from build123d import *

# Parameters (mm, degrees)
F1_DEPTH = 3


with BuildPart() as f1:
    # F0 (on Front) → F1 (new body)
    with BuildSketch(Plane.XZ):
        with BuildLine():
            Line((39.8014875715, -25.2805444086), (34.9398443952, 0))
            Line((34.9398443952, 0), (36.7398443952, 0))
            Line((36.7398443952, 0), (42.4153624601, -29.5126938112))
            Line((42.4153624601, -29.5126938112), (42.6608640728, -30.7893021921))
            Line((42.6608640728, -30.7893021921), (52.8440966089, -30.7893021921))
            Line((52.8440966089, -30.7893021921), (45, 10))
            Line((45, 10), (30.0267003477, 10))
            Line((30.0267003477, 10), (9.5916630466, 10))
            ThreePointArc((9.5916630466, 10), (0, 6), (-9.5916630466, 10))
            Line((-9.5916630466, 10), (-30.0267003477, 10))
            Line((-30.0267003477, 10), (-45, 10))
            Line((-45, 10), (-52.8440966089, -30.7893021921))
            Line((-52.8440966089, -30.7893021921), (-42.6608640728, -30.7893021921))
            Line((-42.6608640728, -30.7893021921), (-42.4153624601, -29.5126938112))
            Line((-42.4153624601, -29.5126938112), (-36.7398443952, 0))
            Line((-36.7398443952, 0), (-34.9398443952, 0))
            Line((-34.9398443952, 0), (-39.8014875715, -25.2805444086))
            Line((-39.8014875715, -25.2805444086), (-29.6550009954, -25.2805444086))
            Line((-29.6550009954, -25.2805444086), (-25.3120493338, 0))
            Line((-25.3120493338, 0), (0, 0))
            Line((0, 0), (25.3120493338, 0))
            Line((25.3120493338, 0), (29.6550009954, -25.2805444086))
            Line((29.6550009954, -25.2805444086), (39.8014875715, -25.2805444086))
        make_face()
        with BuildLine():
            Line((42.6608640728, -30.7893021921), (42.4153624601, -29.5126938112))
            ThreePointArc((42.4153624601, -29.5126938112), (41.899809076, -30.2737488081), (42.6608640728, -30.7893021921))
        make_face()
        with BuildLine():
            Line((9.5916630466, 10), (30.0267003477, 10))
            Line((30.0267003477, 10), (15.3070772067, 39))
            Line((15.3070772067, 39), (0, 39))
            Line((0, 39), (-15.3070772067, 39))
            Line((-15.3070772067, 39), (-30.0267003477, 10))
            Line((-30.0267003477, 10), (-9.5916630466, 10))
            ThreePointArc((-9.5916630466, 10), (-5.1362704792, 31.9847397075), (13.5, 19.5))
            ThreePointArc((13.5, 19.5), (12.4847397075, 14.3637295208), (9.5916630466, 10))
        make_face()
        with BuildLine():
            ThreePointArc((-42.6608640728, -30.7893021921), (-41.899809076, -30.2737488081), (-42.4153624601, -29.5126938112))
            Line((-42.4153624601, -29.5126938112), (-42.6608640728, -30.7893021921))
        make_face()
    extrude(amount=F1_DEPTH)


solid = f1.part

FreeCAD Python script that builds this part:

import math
import FreeCAD as App
import Part
import Sketcher
from FreeCAD import Vector
Q = App.Units.Quantity

doc = App.newDocument("Part")
body = doc.addObject("PartDesign::Body", "Body")

sketch1 = doc.addObject("Sketcher::SketchObject", "Sketch")
body.addObject(sketch1)
sketch1.AttachmentSupport = (doc.XZ_Plane, [""])
sketch1.MapMode = "FlatFace"
sketch1.addGeometry([
    Part.LineSegment(Vector(39.8, -25.3, 0), Vector(34.9, 0, 0)),
    Part.LineSegment(Vector(34.9, 0, 0), Vector(36.7, 0, 0)),
    Part.LineSegment(Vector(36.7, 0, 0), Vector(42.4, -29.5, 0)),
    Part.ArcOfCircle(Part.Circle(Vector(42.5, -30.2, 0), Vector(0, 0, 1), 0.7), math.radians(101), math.radians(281)),
    Part.LineSegment(Vector(42.7, -30.8, 0), Vector(52.8, -30.8, 0)),
    Part.LineSegment(Vector(52.8, -30.8, 0), Vector(45, 10, 0)),
    Part.LineSegment(Vector(45, 10, 0), Vector(30, 10, 0)),
    Part.LineSegment(Vector(30, 10, 0), Vector(15.3, 39, 0)),
    Part.LineSegment(Vector(15.3, 39, 0), Vector(-15.3, 39, 0)),
    Part.LineSegment(Vector(-15.3, 39, 0), Vector(-30, 10, 0)),
    Part.LineSegment(Vector(-30, 10, 0), Vector(-45, 10, 0)),
    Part.LineSegment(Vector(-45, 10, 0), Vector(-52.8, -30.8, 0)),
    Part.LineSegment(Vector(-52.8, -30.8, 0), Vector(-42.7, -30.8, 0)),
    Part.ArcOfCircle(Part.Circle(Vector(-42.5, -30.2, 0), Vector(0, 0, 1), 0.7), math.radians(-101), math.radians(79)),
    Part.LineSegment(Vector(-42.4, -29.5, 0), Vector(-36.7, 0, 0)),
    Part.LineSegment(Vector(-36.7, 0, 0), Vector(-34.9, 0, 0)),
    Part.LineSegment(Vector(-34.9, 0, 0), Vector(-39.8, -25.3, 0)),
    Part.LineSegment(Vector(-39.8, -25.3, 0), Vector(-29.7, -25.3, 0)),
    Part.LineSegment(Vector(-29.7, -25.3, 0), Vector(-25.3, 0, 0)),
    Part.LineSegment(Vector(-25.3, 0, 0), Vector(25.3, 0, 0)),
    Part.LineSegment(Vector(25.3, 0, 0), Vector(29.7, -25.3, 0)),
    Part.LineSegment(Vector(29.7, -25.3, 0), Vector(39.8, -25.3, 0)),
    Part.ArcOfCircle(Part.Circle(Vector(0, 19.5, 0), Vector(0, 0, 1), 13.5), math.radians(-135), math.radians(-45)),
    Part.ArcOfCircle(Part.Circle(Vector(0, 19.5, 0), Vector(0, 0, 1), 13.5), math.radians(0), math.radians(225)),
    Part.ArcOfCircle(Part.Circle(Vector(0, 19.5, 0), Vector(0, 0, 1), 13.5), math.radians(-45), math.radians(0)),
], False)
sketch1.addConstraint([
    Sketcher.Constraint("Coincident", 0, 2, 1, 1),
    Sketcher.Constraint("Coincident", 1, 2, 2, 1),
    Sketcher.Constraint("Coincident", 2, 2, 3, 1),
    Sketcher.Constraint("Coincident", 3, 2, 4, 1),
    Sketcher.Constraint("Coincident", 4, 2, 5, 1),
    Sketcher.Constraint("Coincident", 5, 2, 6, 1),
    Sketcher.Constraint("Coincident", 6, 2, 7, 1),
    Sketcher.Constraint("Coincident", 7, 2, 8, 1),
    Sketcher.Constraint("Coincident", 8, 2, 9, 1),
    Sketcher.Constraint("Coincident", 9, 2, 10, 1),
    Sketcher.Constraint("Coincident", 10, 2, 11, 1),
    Sketcher.Constraint("Coincident", 11, 2, 12, 1),
    Sketcher.Constraint("Coincident", 12, 2, 13, 1),
    Sketcher.Constraint("Coincident", 13, 2, 14, 1),
    Sketcher.Constraint("Coincident", 14, 2, 15, 1),
    Sketcher.Constraint("Coincident", 15, 2, 16, 1),
    Sketcher.Constraint("Coincident", 16, 2, 17, 1),
    Sketcher.Constraint("Coincident", 17, 2, 18, 1),
    Sketcher.Constraint("Coincident", 18, 2, 19, 1),
    Sketcher.Constraint("Coincident", 19, 2, 20, 1),
    Sketcher.Constraint("Coincident", 20, 2, 21, 1),
    Sketcher.Constraint("Coincident", 21, 2, 0, 1),
    Sketcher.Constraint("Tangent", 22, 1, 23, 2),
    Sketcher.Constraint("Tangent", 23, 1, 24, 2),
    Sketcher.Constraint("Tangent", 24, 1, 22, 2),
    Sketcher.Constraint("Horizontal", 1),
    Sketcher.Constraint("Horizontal", 4),
    Sketcher.Constraint("Horizontal", 6),
    Sketcher.Constraint("Horizontal", 8),
    Sketcher.Constraint("Horizontal", 10),
    Sketcher.Constraint("Horizontal", 12),
    Sketcher.Constraint("Horizontal", 15),
    Sketcher.Constraint("Horizontal", 17),
    Sketcher.Constraint("Horizontal", 19),
    Sketcher.Constraint("Horizontal", 21),
    Sketcher.Constraint("Equal", 3, 13),
    Sketcher.Constraint("Symmetric", 1, 2, 14, 2, -1, 1),
    Sketcher.Constraint("Symmetric", 18, 2, 19, 2, -1, 1),
    Sketcher.Constraint("Symmetric", 3, 3, 13, 3, -2),
    Sketcher.Constraint("Symmetric", 6, 2, 9, 2, -2),
    Sketcher.Constraint("Symmetric", 4, 2, 11, 2, -2),
    Sketcher.Constraint("Symmetric", 0, 2, 15, 2, -2),
    Sketcher.Constraint("Symmetric", 17, 2, 20, 2, -2),
    Sketcher.Constraint("Symmetric", 22, 1, 24, 1, -2),
    Sketcher.Constraint("Parallel", 0, 2),
    Sketcher.Constraint("Parallel", 2, 5),
    Sketcher.Constraint("Parallel", 11, 14),
    Sketcher.Constraint("Parallel", 14, 16),
    Sketcher.Constraint("Horizontal", 2, 2, 13, 2),
    Sketcher.Constraint("Horizontal", 10, 2, 22, 1),
    Sketcher.Constraint("Horizontal", 24, 3, 23, 1),
    Sketcher.Constraint("Equal", 7, 9),
    Sketcher.Constraint("Radius", 22, Q("13.5 mm")),
    Sketcher.Constraint("Radius", 3, Q("0.65 mm")),
    Sketcher.Constraint("DistanceX", 1, 1, 1, 2, Q("1.8 mm")),
    Sketcher.Constraint("DistanceX", -1, 1, 5, 2, Q("45 mm")),
    Sketcher.Constraint("DistanceY", -1, 1, 5, 2, Q("10 mm")),
    Sketcher.Constraint("DistanceY", -1, 1, 7, 2, Q("39 mm")),
    Sketcher.Constraint("DistanceY", -1, 1, 22, 3, Q("19.5 mm")),
    Sketcher.Constraint("DistanceX", 6, 2, 6, 1, Q("14.9733 mm")),
    Sketcher.Constraint("DistanceX", 19, 1, 19, 2, Q("50.624099 mm")),
    Sketcher.Constraint("DistanceY", 3, 3, -1, 1, Q("30.150998 mm")),
    Sketcher.Constraint("DistanceX", 17, 2, -1, 1, Q("29.655001 mm")),
    Sketcher.Constraint("DistanceX", 2, 2, 3, 2, Q("0.245502 mm")),
    Sketcher.Constraint("Distance", 18, Q("25.65087 mm")),
    Sketcher.Constraint("DistanceX", 4, 1, 4, 2, Q("10.183233 mm")),
    Sketcher.Constraint("DistanceX", 8, 2, 8, 1, Q("30.614154 mm")),
    Sketcher.Constraint("DistanceX", 17, 1, 17, 2, Q("10.146487 mm")),
    Sketcher.Constraint("DistanceX", 0, 2, 3, 3, Q("7.598269 mm")),
])
pad1 = doc.addObject("PartDesign::Pad", "Pad")
body.addObject(pad1)
pad1.Profile = sketch1
pad1.Length = 3

doc.recompute()
